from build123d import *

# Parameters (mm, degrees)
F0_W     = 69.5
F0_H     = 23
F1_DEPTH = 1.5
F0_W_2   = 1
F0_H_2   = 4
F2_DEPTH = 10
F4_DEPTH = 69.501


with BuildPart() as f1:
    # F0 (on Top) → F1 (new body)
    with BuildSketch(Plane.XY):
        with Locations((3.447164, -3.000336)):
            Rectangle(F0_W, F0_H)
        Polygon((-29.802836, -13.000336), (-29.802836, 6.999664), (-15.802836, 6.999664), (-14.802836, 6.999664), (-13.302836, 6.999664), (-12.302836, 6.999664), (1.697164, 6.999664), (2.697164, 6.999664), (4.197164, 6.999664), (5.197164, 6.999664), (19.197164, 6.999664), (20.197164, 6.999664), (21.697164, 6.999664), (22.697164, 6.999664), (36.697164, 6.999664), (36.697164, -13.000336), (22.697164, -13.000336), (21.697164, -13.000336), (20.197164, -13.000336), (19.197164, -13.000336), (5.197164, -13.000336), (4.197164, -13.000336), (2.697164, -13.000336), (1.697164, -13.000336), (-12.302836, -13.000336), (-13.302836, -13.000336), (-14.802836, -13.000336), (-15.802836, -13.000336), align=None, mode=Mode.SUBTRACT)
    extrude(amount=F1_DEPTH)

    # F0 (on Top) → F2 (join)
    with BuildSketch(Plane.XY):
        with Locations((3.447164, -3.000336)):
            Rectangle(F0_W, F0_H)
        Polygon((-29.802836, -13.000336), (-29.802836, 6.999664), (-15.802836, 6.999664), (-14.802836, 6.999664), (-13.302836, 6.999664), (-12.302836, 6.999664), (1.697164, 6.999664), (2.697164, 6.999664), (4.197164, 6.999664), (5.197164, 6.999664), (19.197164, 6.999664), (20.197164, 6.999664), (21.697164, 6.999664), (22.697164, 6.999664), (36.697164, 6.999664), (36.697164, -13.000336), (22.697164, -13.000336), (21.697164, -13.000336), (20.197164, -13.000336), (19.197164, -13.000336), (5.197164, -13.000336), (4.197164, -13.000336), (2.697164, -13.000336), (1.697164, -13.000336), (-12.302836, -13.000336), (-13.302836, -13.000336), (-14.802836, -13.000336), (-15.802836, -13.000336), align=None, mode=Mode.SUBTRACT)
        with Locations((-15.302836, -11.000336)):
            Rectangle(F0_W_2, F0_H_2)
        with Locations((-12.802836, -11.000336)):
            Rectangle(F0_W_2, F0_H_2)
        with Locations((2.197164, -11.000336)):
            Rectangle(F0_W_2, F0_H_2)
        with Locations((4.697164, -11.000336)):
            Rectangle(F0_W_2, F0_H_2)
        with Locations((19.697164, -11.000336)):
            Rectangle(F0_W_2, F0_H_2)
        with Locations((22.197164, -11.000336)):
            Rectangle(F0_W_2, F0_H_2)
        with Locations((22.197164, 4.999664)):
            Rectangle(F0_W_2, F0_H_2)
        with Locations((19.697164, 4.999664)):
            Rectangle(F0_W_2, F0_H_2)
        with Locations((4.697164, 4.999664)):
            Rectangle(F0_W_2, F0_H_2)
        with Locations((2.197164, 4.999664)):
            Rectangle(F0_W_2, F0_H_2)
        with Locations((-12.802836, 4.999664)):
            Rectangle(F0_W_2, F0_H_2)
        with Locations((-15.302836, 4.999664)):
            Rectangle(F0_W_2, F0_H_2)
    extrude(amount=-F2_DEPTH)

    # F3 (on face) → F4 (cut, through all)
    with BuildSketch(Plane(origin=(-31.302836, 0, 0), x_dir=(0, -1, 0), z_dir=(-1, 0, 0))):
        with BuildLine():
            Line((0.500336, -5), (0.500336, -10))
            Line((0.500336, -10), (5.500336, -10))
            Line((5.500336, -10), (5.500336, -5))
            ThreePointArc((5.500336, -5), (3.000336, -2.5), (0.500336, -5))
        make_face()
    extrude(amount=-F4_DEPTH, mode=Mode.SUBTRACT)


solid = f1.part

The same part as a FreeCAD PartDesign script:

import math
import FreeCAD as App
import Part
import Sketcher
Q = App.Units.Quantity


def add_polygon(sketch, points):
    """Adds a closed chain of lines whose ends are joined by coincident constraints."""
    first, n = sketch.GeometryCount, len(points)
    for a, b in zip(points, points[1:] + points[:1]):
        sketch.addGeometry(Part.LineSegment(App.Vector(*a, 0), App.Vector(*b, 0)), False)
    for i in range(n):
        sketch.addConstraint(Sketcher.Constraint("Coincident", first + i, 2, first + (i + 1) % n, 1))

doc = App.newDocument("Part")
params = doc.addObject("Spreadsheet::Sheet", "Params")
for row, (alias, value) in enumerate([
    ("sketch1_height", "23 mm"),
    ("sketch1_height2", "20 mm"),
    ("sketch1_width", "69.5 mm"),
    ("sketch1_width2", "66.5 mm"),
    ("pad1_length", "1.5 mm"),
    ("sketch2_width", "14 mm"),
    ("sketch2_width2", "1 mm"),
    ("sketch2_height", "23 mm"),
    ("sketch2_height2", "4 mm"),
    ("sketch2_height3", "20 mm"),
    ("pad2_length", "10 mm"),
    ("sketch3_radius", "2.5 mm"),
], start=1):
    params.set(f"A{row}", alias)
    params.set(f"B{row}", "=" + value)
    params.setAlias(f"B{row}", alias)

body = doc.addObject("PartDesign::Body", "Body")

sketch1 = doc.addObject("Sketcher::SketchObject", "Sketch")
body.addObject(sketch1)
sketch1.AttachmentSupport = (doc.XY_Plane, [""])
sketch1.MapMode = "FlatFace"
add_polygon(sketch1, [(-31, 8), (-31, -15), (38, -15), (38, 8)])
add_polygon(sketch1, [(37, -13), (-30, -13), (-30, 7), (37, 7)])
sketch1.addConstraint([
    Sketcher.Constraint("Vertical", 0),
    Sketcher.Constraint("Horizontal", 1),
    Sketcher.Constraint("Vertical", 2),
    Sketcher.Constraint("Horizontal", 3),
    Sketcher.Constraint("Horizontal", 4),
    Sketcher.Constraint("Vertical", 5),
    Sketcher.Constraint("Horizontal", 6),
    Sketcher.Constraint("Vertical", 7),
    Sketcher.Constraint("DistanceY", 0, 2, 0, 1, Q("23 mm")),
    Sketcher.Constraint("DistanceY", 5, 1, 5, 2, Q("20 mm")),
    Sketcher.Constraint("DistanceX", 1, 1, 1, 2, Q("69.5 mm")),
    Sketcher.Constraint("DistanceX", 4, 2, 4, 1, Q("66.5 mm")),
    Sketcher.Constraint("DistanceX", 4, 2, 1, 2, Q("68 mm")),
    Sketcher.Constraint("DistanceY", 0, 2, 4, 2, Q("1.5 mm")),
    Sketcher.Constraint("DistanceX", 0, 2, -1, 1, Q("31.302836 mm")),
    Sketcher.Constraint("DistanceY", 0, 2, -1, 1, Q("14.500336 mm")),
])
sketch1.setExpression("Constraints[16]", "Params.sketch1_height")
sketch1.setExpression("Constraints[17]", "Params.sketch1_height2")
sketch1.setExpression("Constraints[18]", "Params.sketch1_width")
sketch1.setExpression("Constraints[19]", "Params.sketch1_width2")
pad1 = doc.addObject("PartDesign::Pad", "Pad")
body.addObject(pad1)
pad1.Profile = sketch1
pad1.setExpression("Length", "Params.pad1_length")

sketch2 = doc.addObject("Sketcher::SketchObject", "Sketch001")
body.addObject(sketch2)
sketch2.AttachmentSupport = (doc.XY_Plane, [""])
sketch2.MapMode = "FlatFace"
add_polygon(sketch2, [(-31.3, 8.5), (-31.3, -14.5), (38.2, -14.5), (38.2, 8.5)])
add_polygon(sketch2, [(36.7, -13), (22.7, -13), (22.7, -9), (21.7, -9), (21.7, -13), (20.2, -13), (20.2, -9), (19.2, -9), (19.2, -13), (5.2, -13), (5.2, -9), (4.2, -9), (4.2, -13), (2.7, -13), (2.7, -9), (1.7, -9), (1.7, -13), (-12.3, -13), (-12.3, -9), (-13.3, -9), (-13.3, -13), (-14.8, -13), (-14.8, -9), (-15.8, -9), (-15.8, -13), (-29.8, -13), (-29.8, 7), (-15.8, 7), (-15.8, 3), (-14.8, 3), (-14.8, 7), (-13.3, 7), (-13.3, 3), (-12.3, 3), (-12.3, 7), (1.7, 7), (1.7, 3), (2.7, 3), (2.7, 7), (4.2, 7), (4.2, 3), (5.2, 3), (5.2, 7), (19.2, 7), (19.2, 3), (20.2, 3), (20.2, 7), (21.7, 7), (21.7, 3), (22.7, 3), (22.7, 7), (36.7, 7)])
sketch2.addConstraint([
    Sketcher.Constraint("Vertical", 0),
    Sketcher.Constraint("Horizontal", 1),
    Sketcher.Constraint("Vertical", 2),
    Sketcher.Constraint("Horizontal", 3),
    Sketcher.Constraint("Horizontal", 4),
    Sketcher.Constraint("Vertical", 5),
    Sketcher.Constraint("Horizontal", 6),
    Sketcher.Constraint("Vertical", 7),
    Sketcher.Constraint("Horizontal", 8),
    Sketcher.Constraint("Vertical", 9),
    Sketcher.Constraint("Horizontal", 10),
    Sketcher.Constraint("Vertical", 11),
    Sketcher.Constraint("Horizontal", 12),
    Sketcher.Constraint("Vertical", 13),
    Sketcher.Constraint("Horizontal", 14),
    Sketcher.Constraint("Vertical", 15),
    Sketcher.Constraint("Horizontal", 16),
    Sketcher.Constraint("Vertical", 17),
    Sketcher.Constraint("Horizontal", 18),
    Sketcher.Constraint("Vertical", 19),
    Sketcher.Constraint("Horizontal", 20),
    Sketcher.Constraint("Vertical", 21),
    Sketcher.Constraint("Horizontal", 22),
    Sketcher.Constraint("Vertical", 23),
    Sketcher.Constraint("Horizontal", 24),
    Sketcher.Constraint("Vertical", 25),
    Sketcher.Constraint("Horizontal", 26),
    Sketcher.Constraint("Vertical", 27),
    Sketcher.Constraint("Horizontal", 28),
    Sketcher.Constraint("Vertical", 29),
    Sketcher.Constraint("Horizontal", 30),
    Sketcher.Constraint("Vertical", 31),
    Sketcher.Constraint("Horizontal", 32),
    Sketcher.Constraint("Vertical", 33),
    Sketcher.Constraint("Horizontal", 34),
    Sketcher.Constraint("Vertical", 35),
    Sketcher.Constraint("Horizontal", 36),
    Sketcher.Constraint("Vertical", 37),
    Sketcher.Constraint("Horizontal", 38),
    Sketcher.Constraint("Vertical", 39),
    Sketcher.Constraint("Horizontal", 40),
    Sketcher.Constraint("Vertical", 41),
    Sketcher.Constraint("Horizontal", 42),
    Sketcher.Constraint("Vertical", 43),
    Sketcher.Constraint("Horizontal", 44),
    Sketcher.Constraint("Vertical", 45),
    Sketcher.Constraint("Horizontal", 46),
    Sketcher.Constraint("Vertical", 47),
    Sketcher.Constraint("Horizontal", 48),
    Sketcher.Constraint("Vertical", 49),
    Sketcher.Constraint("Horizontal", 50),
    Sketcher.Constraint("Vertical", 51),
    Sketcher.Constraint("Horizontal", 52),
    Sketcher.Constraint("Vertical", 53),
    Sketcher.Constraint("Horizontal", 54),
    Sketcher.Constraint("Vertical", 55),
    Sketcher.Constraint("Horizontal", 4, 2, 7, 2),
    Sketcher.Constraint("Horizontal", 6, 2, 9, 2),
    Sketcher.Constraint("Horizontal", 8, 2, 11, 2),
    Sketcher.Constraint("Horizontal", 10, 2, 13, 2),
    Sketcher.Constraint("Horizontal", 12, 2, 15, 2),
    Sketcher.Constraint("Horizontal", 14, 2, 17, 2),
    Sketcher.Constraint("Horizontal", 16, 2, 19, 2),
    Sketcher.Constraint("Horizontal", 18, 2, 21, 2),
    Sketcher.Constraint("Horizontal", 20, 2, 23, 2),
    Sketcher.Constraint("Horizontal", 22, 2, 25, 2),
    Sketcher.Constraint("Horizontal", 24, 2, 27, 2),
    Sketcher.Constraint("Horizontal", 30, 2, 33, 2),
    Sketcher.Constraint("Horizontal", 32, 2, 35, 2),
    Sketcher.Constraint("Horizontal", 34, 2, 37, 2),
    Sketcher.Constraint("Horizontal", 36, 2, 39, 2),
    Sketcher.Constraint("Horizontal", 38, 2, 41, 2),
    Sketcher.Constraint("Horizontal", 40, 2, 43, 2),
    Sketcher.Constraint("Horizontal", 42, 2, 45, 2),
    Sketcher.Constraint("Horizontal", 44, 2, 47, 2),
    Sketcher.Constraint("Horizontal", 46, 2, 49, 2),
    Sketcher.Constraint("Horizontal", 48, 2, 51, 2),
    Sketcher.Constraint("Horizontal", 50, 2, 53, 2),
    Sketcher.Constraint("Vertical", 27, 2, 30, 2),
    Sketcher.Constraint("Vertical", 25, 2, 32, 2),
    Sketcher.Constraint("Vertical", 23, 2, 34, 2),
    Sketcher.Constraint("Vertical", 21, 2, 36, 2),
    Sketcher.Constraint("Vertical", 19, 2, 38, 2),
    Sketcher.Constraint("Vertical", 17, 2, 40, 2),
    Sketcher.Constraint("Vertical", 15, 2, 42, 2),
    Sketcher.Constraint("Vertical", 13, 2, 44, 2),
    Sketcher.Constraint("Vertical", 11, 2, 46, 2),
    Sketcher.Constraint("Vertical", 9, 2, 48, 2),
    Sketcher.Constraint("Vertical", 7, 2, 50, 2),
    Sketcher.Constraint("Vertical", 5, 2, 52, 2),
    Sketcher.Constraint("Equal", 6, 10),
    Sketcher.Constraint("Equal", 4, 12),
    Sketcher.Constraint("Equal", 10, 14),
    Sketcher.Constraint("Equal", 8, 16),
    Sketcher.Constraint("Equal", 14, 18),
    Sketcher.Constraint("Equal", 12, 20),
    Sketcher.Constraint("Equal", 18, 22),
    Sketcher.Constraint("Equal", 16, 24),
    Sketcher.Constraint("Equal", 22, 26),
    Sketcher.Constraint("Equal", 20, 28),
    Sketcher.Constraint("Equal", 27, 31),
    Sketcher.Constraint("DistanceX", 4, 2, 4, 1, Q("14 mm")),
    Sketcher.Constraint("DistanceX", 6, 2, 6, 1, Q("1 mm")),
    Sketcher.Constraint("DistanceY", 0, 2, 0, 1, Q("23 mm")),
    Sketcher.Constraint("DistanceY", 5, 1, 5, 2, Q("4 mm")),
    Sketcher.Constraint("DistanceY", 29, 1, 29, 2, Q("20 mm")),
    Sketcher.Constraint("DistanceX", 1, 1, 1, 2, Q("69.5 mm")),
    Sketcher.Constraint("DistanceX", 8, 2, 8, 1, Q("1.5 mm")),
    Sketcher.Constraint("DistanceX", 0, 2, 4, 2, Q("54 mm")),
    Sketcher.Constraint("DistanceY", 1, 2, 4, 2, Q("1.5 mm")),
    Sketcher.Constraint("DistanceX", 0, 2, -1, 1, Q("31.302836 mm")),
    Sketcher.Constraint("DistanceY", 0, 2, -1, 1, Q("14.500336 mm")),
])
sketch2.setExpression("Constraints[157]", "Params.sketch2_width")
sketch2.setExpression("Constraints[158]", "Params.sketch2_width2")
sketch2.setExpression("Constraints[159]", "Params.sketch2_height")
sketch2.setExpression("Constraints[160]", "Params.sketch2_height2")
sketch2.setExpression("Constraints[161]", "Params.sketch2_height3")
pad2 = doc.addObject("PartDesign::Pad", "Pad001")
body.addObject(pad2)
pad2.Profile = sketch2
pad2.setExpression("Length", "Params.pad2_length")
pad2.Reversed = True

sketch3 = doc.addObject("Sketcher::SketchObject", "Sketch002")
body.addObject(sketch3)
sketch3.AttachmentSupport = (doc.YZ_Plane, [""])
sketch3.MapMode = "FlatFace"
sketch3.AttachmentOffset = App.Placement(App.Vector(0, 0, -31.302836), App.Rotation())
sketch3.addGeometry([
    Part.LineSegment(App.Vector(-0.5, -5, 0), App.Vector(-0.5, -10, 0)),
    Part.LineSegment(App.Vector(-0.5, -10, 0), App.Vector(-5.5, -10, 0)),
    Part.LineSegment(App.Vector(-5.5, -10, 0), App.Vector(-5.5, -5, 0)),
    Part.ArcOfCircle(Part.Circle(App.Vector(-3, -5, 0), App.Vector(0, 0, 1), 2.5), math.radians(0), math.radians(180)),
], False)
sketch3.addConstraint([
    Sketcher.Constraint("Coincident", 0, 2, 1, 1),
    Sketcher.Constraint("Coincident", 1, 2, 2, 1),
    Sketcher.Constraint("Tangent", 2, 2, 3, 2),
    Sketcher.Constraint("Tangent", 3, 1, 0, 1),
    Sketcher.Constraint("Vertical", 0),
    Sketcher.Constraint("Horizontal", 1),
    Sketcher.Constraint("Vertical", 2),
    Sketcher.Constraint("Equal", 1, 0),
    Sketcher.Constraint("Radius", 3, Q("2.5 mm")),
    Sketcher.Constraint("DistanceY", 3, 3, -1, 1, Q("5 mm")),
    Sketcher.Constraint("DistanceX", 3, 3, -1, 1, Q("3.000336 mm")),
])
sketch3.setExpression("Constraints[8]", "Params.sketch3_radius")
pocket1 = doc.addObject("PartDesign::Pocket", "Pocket")
body.addObject(pocket1)
pocket1.Profile = sketch3
pocket1.Type = "ThroughAll"
pocket1.Reversed = True

doc.recompute()
